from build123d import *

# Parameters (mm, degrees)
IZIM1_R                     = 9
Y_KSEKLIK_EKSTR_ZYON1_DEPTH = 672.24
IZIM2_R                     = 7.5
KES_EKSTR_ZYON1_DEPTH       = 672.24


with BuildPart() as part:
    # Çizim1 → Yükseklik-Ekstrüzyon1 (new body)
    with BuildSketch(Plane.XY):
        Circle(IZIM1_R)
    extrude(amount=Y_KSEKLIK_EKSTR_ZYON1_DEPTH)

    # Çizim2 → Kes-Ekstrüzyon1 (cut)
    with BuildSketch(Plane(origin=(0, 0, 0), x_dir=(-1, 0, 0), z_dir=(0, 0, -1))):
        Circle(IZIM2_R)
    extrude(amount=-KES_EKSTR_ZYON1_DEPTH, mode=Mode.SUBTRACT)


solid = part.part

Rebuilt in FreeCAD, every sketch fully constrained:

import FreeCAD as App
import Part
import Sketcher

doc = App.newDocument("Part")
body = doc.addObject("PartDesign::Body", "Body")

# Sketch on XY plane
sketch1 = body.newObject("Sketcher::SketchObject", "Sketch")
sketch1.AttachmentSupport = (doc.getObject("XY_Plane"), [""])
sketch1.MapMode = "FlatFace"
sketch1.addGeometry(Part.Circle(App.Vector(0, 0, 0), App.Vector(0, 0, 1), 9), False)
sketch1.addConstraint(Sketcher.Constraint("Coincident", 0, 3, -1, 1))
sketch1.addConstraint(Sketcher.Constraint("Diameter", 0, 18.0))
pad1 = body.newObject("PartDesign::Pad", "Pad")
pad1.Profile = sketch1
pad1.Length = 672.24

# Sketch on XY plane
sketch2 = body.newObject("Sketcher::SketchObject", "Sketch001")
sketch2.AttachmentSupport = (doc.getObject("XY_Plane"), [""])
sketch2.MapMode = "FlatFace"
sketch2.addGeometry(Part.Circle(App.Vector(0, 0, 0), App.Vector(0, 0, 1), 8), False)
sketch2.addConstraint(Sketcher.Constraint("Coincident", 0, 3, -1, 1))
sketch2.addConstraint(Sketcher.Constraint("Diameter", 0, 15.0))
pocket1 = body.newObject("PartDesign::Pocket", "Pocket")
pocket1.Profile = sketch2
pocket1.Length = 672.24
pocket1.Reversed = True

doc.recompute()
